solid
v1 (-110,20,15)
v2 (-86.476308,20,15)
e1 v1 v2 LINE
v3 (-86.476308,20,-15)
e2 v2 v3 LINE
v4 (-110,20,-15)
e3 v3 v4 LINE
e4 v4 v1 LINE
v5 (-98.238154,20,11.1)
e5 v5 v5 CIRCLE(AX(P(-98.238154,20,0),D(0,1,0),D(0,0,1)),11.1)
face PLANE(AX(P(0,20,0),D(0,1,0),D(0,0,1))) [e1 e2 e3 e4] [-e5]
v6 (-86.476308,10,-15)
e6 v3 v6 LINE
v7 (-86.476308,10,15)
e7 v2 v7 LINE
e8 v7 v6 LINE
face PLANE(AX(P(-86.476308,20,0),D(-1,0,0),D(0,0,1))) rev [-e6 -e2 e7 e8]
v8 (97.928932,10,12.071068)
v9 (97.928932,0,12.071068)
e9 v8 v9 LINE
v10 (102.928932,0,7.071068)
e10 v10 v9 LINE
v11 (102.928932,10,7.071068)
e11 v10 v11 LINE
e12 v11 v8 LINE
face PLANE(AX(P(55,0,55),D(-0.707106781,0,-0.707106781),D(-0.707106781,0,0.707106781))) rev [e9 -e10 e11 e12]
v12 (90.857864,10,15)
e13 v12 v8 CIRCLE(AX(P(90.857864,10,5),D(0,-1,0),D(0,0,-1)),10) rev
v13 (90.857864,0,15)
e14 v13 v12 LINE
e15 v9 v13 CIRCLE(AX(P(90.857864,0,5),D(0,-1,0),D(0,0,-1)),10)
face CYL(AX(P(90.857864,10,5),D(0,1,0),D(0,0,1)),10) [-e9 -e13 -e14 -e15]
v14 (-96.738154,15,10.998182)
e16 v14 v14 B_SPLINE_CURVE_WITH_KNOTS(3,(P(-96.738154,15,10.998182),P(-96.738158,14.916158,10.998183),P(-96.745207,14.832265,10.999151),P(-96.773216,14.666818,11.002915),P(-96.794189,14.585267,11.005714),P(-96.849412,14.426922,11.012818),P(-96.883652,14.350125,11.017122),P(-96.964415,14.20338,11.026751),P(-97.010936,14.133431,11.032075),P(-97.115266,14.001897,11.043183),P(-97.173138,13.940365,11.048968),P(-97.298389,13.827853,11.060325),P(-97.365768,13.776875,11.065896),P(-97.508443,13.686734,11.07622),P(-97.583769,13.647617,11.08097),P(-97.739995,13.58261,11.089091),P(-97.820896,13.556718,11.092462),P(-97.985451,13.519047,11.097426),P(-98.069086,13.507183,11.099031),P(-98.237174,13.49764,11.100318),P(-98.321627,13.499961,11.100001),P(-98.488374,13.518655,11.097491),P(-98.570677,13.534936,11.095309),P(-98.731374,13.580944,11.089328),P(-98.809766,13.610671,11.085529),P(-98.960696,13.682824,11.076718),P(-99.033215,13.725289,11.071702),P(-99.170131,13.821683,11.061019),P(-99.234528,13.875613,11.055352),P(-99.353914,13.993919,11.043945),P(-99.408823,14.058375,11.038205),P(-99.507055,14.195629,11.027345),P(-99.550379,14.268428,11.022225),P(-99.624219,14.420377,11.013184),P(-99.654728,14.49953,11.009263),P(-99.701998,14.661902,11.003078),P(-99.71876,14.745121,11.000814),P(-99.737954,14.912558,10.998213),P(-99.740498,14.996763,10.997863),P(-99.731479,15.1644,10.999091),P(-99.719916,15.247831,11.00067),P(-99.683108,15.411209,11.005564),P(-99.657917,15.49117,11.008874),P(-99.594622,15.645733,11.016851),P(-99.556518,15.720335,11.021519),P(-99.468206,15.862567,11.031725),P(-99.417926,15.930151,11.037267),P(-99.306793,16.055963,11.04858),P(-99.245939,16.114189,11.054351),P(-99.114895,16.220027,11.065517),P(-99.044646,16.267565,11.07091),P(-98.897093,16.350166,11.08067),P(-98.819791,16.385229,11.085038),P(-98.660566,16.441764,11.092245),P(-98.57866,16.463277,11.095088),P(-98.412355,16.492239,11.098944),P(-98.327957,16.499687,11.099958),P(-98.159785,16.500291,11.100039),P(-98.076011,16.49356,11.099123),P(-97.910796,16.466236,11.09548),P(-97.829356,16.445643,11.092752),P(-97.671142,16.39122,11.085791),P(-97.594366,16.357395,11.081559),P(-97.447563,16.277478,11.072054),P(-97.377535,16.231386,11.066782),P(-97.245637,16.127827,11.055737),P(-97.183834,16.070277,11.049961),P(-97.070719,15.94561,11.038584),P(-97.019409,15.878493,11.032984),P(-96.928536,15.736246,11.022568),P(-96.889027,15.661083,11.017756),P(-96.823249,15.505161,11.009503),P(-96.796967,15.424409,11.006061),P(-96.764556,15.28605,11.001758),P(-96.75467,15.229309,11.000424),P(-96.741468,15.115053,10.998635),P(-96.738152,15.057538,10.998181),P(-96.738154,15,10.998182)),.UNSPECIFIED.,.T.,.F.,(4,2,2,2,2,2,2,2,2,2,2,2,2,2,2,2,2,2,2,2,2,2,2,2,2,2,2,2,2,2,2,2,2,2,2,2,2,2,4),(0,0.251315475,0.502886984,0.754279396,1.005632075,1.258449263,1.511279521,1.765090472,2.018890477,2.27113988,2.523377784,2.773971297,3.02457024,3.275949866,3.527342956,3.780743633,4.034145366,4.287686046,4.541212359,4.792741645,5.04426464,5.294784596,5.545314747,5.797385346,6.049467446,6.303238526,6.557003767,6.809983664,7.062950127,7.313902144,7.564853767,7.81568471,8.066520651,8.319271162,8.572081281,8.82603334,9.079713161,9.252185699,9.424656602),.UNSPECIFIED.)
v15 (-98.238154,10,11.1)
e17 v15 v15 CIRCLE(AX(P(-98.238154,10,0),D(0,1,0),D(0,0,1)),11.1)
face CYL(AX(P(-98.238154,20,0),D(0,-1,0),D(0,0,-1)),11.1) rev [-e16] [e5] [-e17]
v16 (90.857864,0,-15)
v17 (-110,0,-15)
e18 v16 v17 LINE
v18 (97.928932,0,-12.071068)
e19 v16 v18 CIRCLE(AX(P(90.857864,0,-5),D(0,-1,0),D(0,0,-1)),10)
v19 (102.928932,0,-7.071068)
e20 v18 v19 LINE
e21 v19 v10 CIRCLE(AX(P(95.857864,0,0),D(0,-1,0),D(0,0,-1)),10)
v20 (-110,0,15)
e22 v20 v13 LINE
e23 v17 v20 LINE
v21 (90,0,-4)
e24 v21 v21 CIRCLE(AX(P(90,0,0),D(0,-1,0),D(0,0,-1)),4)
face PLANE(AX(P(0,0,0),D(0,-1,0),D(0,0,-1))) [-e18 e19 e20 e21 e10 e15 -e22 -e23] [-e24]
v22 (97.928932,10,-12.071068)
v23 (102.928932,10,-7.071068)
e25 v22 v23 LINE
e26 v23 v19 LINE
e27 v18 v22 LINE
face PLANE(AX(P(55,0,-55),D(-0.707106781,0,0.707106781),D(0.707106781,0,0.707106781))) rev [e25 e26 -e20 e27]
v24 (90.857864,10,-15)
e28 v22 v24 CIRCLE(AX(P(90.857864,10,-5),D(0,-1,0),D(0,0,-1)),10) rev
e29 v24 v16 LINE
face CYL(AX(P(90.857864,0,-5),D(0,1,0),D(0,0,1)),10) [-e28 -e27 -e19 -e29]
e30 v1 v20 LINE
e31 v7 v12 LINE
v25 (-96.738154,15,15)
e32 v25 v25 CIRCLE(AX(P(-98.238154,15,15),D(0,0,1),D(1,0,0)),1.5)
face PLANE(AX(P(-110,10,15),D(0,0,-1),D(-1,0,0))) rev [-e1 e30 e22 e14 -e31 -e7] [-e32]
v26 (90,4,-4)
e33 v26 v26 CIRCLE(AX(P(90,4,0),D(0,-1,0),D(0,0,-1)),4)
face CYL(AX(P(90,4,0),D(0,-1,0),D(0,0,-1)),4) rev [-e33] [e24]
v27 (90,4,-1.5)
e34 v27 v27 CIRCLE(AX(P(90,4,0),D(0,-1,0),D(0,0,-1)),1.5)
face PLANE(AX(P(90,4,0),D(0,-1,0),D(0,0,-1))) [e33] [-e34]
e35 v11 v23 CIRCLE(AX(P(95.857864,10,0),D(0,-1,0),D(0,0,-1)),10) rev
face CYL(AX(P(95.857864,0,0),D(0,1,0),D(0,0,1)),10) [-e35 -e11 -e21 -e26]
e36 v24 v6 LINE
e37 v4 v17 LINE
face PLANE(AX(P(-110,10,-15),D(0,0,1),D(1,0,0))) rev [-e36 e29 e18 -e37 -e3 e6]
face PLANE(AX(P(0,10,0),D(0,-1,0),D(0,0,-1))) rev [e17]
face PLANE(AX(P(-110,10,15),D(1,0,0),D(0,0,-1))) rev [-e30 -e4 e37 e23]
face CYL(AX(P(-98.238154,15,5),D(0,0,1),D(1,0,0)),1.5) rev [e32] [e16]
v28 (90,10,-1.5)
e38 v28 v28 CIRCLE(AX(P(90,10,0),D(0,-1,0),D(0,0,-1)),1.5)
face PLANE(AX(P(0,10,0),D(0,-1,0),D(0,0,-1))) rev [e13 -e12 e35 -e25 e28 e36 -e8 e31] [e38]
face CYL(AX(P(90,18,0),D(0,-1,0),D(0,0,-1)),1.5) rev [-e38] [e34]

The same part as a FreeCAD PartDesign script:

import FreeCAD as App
import Part
import Sketcher

V = App.Vector


def edges_at(feature, points):
    """Names of the edges that pass closest to the given points."""
    edges = feature.Shape.Edges
    near = lambda p: min(range(len(edges)), key=lambda i: edges[i].distToShape(Part.Vertex(*p))[0])
    return sorted({f"Edge{near(p) + 1}" for p in points})

doc = App.newDocument("Part")
body = doc.addObject("PartDesign::Body", "Body")

# Sketch on XZ plane
sketch1 = body.newObject("Sketcher::SketchObject", "Sketch")
sketch1.AttachmentSupport = (doc.getObject("XZ_Plane"), [""])
sketch1.MapMode = "FlatFace"
sketch1.addGeometry([
    Part.LineSegment(V(-110, -15, 0), V(-110, 15, 0)),
    Part.LineSegment(V(-110, 15, 0), V(110, 15, 0)),
    Part.LineSegment(V(110, 15, 0), V(110, -15, 0)),
    Part.LineSegment(V(110, -15, 0), V(-110, -15, 0)),
], False)
sketch1.addConstraint([
    Sketcher.Constraint("Coincident", 0, 2, 1, 1),
    Sketcher.Constraint("Coincident", 1, 2, 2, 1),
    Sketcher.Constraint("Coincident", 2, 2, 3, 1),
    Sketcher.Constraint("Coincident", 3, 2, 0, 1),
    Sketcher.Constraint("Vertical", 0),
    Sketcher.Constraint("Horizontal", 1),
    Sketcher.Constraint("Vertical", 2),
    Sketcher.Constraint("Horizontal", 3),
    Sketcher.Constraint("Symmetric", 0, 2, 2, 2, -1, 1),
    Sketcher.Constraint("DistanceX", 1, 1, 1, 2, 220.0),
    Sketcher.Constraint("DistanceY", 0, 1, 0, 2, 30.0),
])
pad1 = body.newObject("PartDesign::Pad", "Pad")
pad1.Profile = sketch1
pad1.Length = 10
pad1.Reversed = True

# Sketch on XZ plane
sketch2 = body.newObject("Sketcher::SketchObject", "Sketch001")
sketch2.AttachmentSupport = (doc.getObject("XZ_Plane"), [""])
sketch2.MapMode = "FlatFace"
sketch2.AttachmentOffset = App.Placement(V(0, 0, -10), App.Rotation())
sketch2.addGeometry([
    Part.LineSegment(V(-110, -15, 0), V(-110, 15, 0)),  # 0
    Part.LineSegment(V(-110, 15, 0), V(-86.476308, 15, 0)),  # 1
    Part.LineSegment(V(-86.476308, 15, 0), V(-86.476308, -15, 0)),  # 2
    Part.LineSegment(V(-86.476308, -15, 0), V(-110, -15, 0)),  # 3
    Part.Circle(V(-98.238154, 0, 0), V(0, 0, 1), 11.1),  # 4
], False)
sketch2.addConstraint([
    Sketcher.Constraint("Coincident", 0, 2, 1, 1),
    Sketcher.Constraint("Coincident", 1, 2, 2, 1),
    Sketcher.Constraint("Coincident", 2, 2, 3, 1),
    Sketcher.Constraint("Coincident", 3, 2, 0, 1),
    Sketcher.Constraint("Vertical", 0),
    Sketcher.Constraint("Horizontal", 1),
    Sketcher.Constraint("Vertical", 2),
    Sketcher.Constraint("Horizontal", 3),
    Sketcher.Constraint("PointOnObject", 4, 3, -1),
    Sketcher.Constraint("Diameter", 4, 22.2),
    Sketcher.Constraint("DistanceY", 0, 1, 0, 2, 30.0),
    Sketcher.Constraint("DistanceX", 0, 2, -1, 1, 110.0),
    Sketcher.Constraint("DistanceY", -1, 1, 0, 2, 15.0),
    Sketcher.Constraint("DistanceX", 1, 1, 1, 2, 23.523692),
    Sketcher.Constraint("DistanceX", 4, 3, -1, 1, 98.238154),
])
pad2 = body.newObject("PartDesign::Pad", "Pad001")
pad2.Profile = sketch2
pad2.Length = 10
pad2.Reversed = True

# Sketch on XY plane
sketch3 = body.newObject("Sketcher::SketchObject", "Sketch002")
sketch3.AttachmentSupport = (doc.getObject("XY_Plane"), [""])
sketch3.MapMode = "FlatFace"
sketch3.AttachmentOffset = App.Placement(V(0, 0, 15), App.Rotation())
sketch3.addGeometry(Part.Circle(V(-98.238154, 15, 0), V(0, 0, 1), 1.5), False)
sketch3.addConstraint([
    Sketcher.Constraint("Diameter", 0, 3.0),
    Sketcher.Constraint("DistanceY", -1, 1, 0, 3, 15.0),
    Sketcher.Constraint("DistanceX", 0, 3, -1, 1, 98.238154),
])
pocket1 = body.newObject("PartDesign::Pocket", "Pocket")
pocket1.Profile = sketch3
pocket1.Length = 10

# Sketch on XZ plane
sketch4 = body.newObject("Sketcher::SketchObject", "Sketch003")
sketch4.AttachmentSupport = (doc.getObject("XZ_Plane"), [""])
sketch4.MapMode = "FlatFace"
sketch4.addGeometry(Part.Circle(V(90, 0, 0), V(0, 0, 1), 4), False)
sketch4.addConstraint([
    Sketcher.Constraint("PointOnObject", 0, 3, -1),
    Sketcher.Constraint("Diameter", 0, 8.0),
    Sketcher.Constraint("DistanceX", -1, 1, 0, 3, 90.0),
])
pocket2 = body.newObject("PartDesign::Pocket", "Pocket001")
pocket2.Profile = sketch4
pocket2.Length = 4

# Sketch on XZ plane
sketch5 = body.newObject("Sketcher::SketchObject", "Sketch004")
sketch5.AttachmentSupport = (doc.getObject("XZ_Plane"), [""])
sketch5.MapMode = "FlatFace"
sketch5.AttachmentOffset = App.Placement(V(0, 0, -4), App.Rotation())
sketch5.addGeometry(Part.Circle(V(90, 0, 0), V(0, 0, 1), 1.5), False)
sketch5.addConstraint([
    Sketcher.Constraint("PointOnObject", 0, 3, -1),
    Sketcher.Constraint("Diameter", 0, 3.0),
    Sketcher.Constraint("DistanceX", -1, 1, 0, 3, 90.0),
])
pocket3 = body.newObject("PartDesign::Pocket", "Pocket002")
pocket3.Profile = sketch5
pocket3.Length = 14

# Sketch on XZ plane
sketch6 = body.newObject("Sketcher::SketchObject", "Sketch005")
sketch6.AttachmentSupport = (doc.getObject("XZ_Plane"), [""])
sketch6.MapMode = "FlatFace"
sketch6.AttachmentOffset = App.Placement(V(0, 0, -10), App.Rotation())
sketch6.addGeometry([
    Part.LineSegment(V(110, 15, 0), V(110, 0, 0)),  # 0
    Part.LineSegment(V(110, 0, 0), V(95, 15, 0)),  # 1
    Part.LineSegment(V(95, 15, 0), V(110, 15, 0)),  # 2
    Part.LineSegment(V(110, -15, 0), V(95, -15, 0)),  # 3
    Part.LineSegment(V(95, -15, 0), V(110, 0, 0)),  # 4
    Part.LineSegment(V(110, 0, 0), V(110, -15, 0)),  # 5
], False)
sketch6.addConstraint([
    Sketcher.Constraint("Coincident", 0, 2, 1, 1),
    Sketcher.Constraint("Coincident", 1, 2, 2, 1),
    Sketcher.Constraint("Coincident", 2, 2, 0, 1),
    Sketcher.Constraint("Coincident", 3, 2, 4, 1),
    Sketcher.Constraint("Coincident", 4, 2, 5, 1),
    Sketcher.Constraint("Coincident", 5, 2, 3, 1),
    Sketcher.Constraint("Vertical", 0),
    Sketcher.Constraint("Horizontal", 2),
    Sketcher.Constraint("Horizontal", 3),
    Sketcher.Constraint("Vertical", 5),
    Sketcher.Constraint("Coincident", 4, 2, 0, 2),
    Sketcher.Constraint("Symmetric", 1, 2, 3, 2, -1),
    Sketcher.Constraint("PointOnObject", 0, 2, -1),
    Sketcher.Constraint("Perpendicular", 1, 4),
    Sketcher.Constraint("DistanceX", 2, 1, 2, 2, 15.0),
    Sketcher.Constraint("DistanceX", -1, 1, 0, 2, 110.0),
])
pocket4 = body.newObject("PartDesign::Pocket", "Pocket003")
pocket4.Profile = sketch6
pocket4.Length = 10
pocket4.Reversed = True
doc.recompute()

fillet = body.newObject("PartDesign::Fillet", "Fillet")
fillet.Base = (pocket4, edges_at(pocket4, [(110, 5, 0), (95, 5, 15), (95, 5, -15)]))
fillet.Radius = 10

doc.recompute()
